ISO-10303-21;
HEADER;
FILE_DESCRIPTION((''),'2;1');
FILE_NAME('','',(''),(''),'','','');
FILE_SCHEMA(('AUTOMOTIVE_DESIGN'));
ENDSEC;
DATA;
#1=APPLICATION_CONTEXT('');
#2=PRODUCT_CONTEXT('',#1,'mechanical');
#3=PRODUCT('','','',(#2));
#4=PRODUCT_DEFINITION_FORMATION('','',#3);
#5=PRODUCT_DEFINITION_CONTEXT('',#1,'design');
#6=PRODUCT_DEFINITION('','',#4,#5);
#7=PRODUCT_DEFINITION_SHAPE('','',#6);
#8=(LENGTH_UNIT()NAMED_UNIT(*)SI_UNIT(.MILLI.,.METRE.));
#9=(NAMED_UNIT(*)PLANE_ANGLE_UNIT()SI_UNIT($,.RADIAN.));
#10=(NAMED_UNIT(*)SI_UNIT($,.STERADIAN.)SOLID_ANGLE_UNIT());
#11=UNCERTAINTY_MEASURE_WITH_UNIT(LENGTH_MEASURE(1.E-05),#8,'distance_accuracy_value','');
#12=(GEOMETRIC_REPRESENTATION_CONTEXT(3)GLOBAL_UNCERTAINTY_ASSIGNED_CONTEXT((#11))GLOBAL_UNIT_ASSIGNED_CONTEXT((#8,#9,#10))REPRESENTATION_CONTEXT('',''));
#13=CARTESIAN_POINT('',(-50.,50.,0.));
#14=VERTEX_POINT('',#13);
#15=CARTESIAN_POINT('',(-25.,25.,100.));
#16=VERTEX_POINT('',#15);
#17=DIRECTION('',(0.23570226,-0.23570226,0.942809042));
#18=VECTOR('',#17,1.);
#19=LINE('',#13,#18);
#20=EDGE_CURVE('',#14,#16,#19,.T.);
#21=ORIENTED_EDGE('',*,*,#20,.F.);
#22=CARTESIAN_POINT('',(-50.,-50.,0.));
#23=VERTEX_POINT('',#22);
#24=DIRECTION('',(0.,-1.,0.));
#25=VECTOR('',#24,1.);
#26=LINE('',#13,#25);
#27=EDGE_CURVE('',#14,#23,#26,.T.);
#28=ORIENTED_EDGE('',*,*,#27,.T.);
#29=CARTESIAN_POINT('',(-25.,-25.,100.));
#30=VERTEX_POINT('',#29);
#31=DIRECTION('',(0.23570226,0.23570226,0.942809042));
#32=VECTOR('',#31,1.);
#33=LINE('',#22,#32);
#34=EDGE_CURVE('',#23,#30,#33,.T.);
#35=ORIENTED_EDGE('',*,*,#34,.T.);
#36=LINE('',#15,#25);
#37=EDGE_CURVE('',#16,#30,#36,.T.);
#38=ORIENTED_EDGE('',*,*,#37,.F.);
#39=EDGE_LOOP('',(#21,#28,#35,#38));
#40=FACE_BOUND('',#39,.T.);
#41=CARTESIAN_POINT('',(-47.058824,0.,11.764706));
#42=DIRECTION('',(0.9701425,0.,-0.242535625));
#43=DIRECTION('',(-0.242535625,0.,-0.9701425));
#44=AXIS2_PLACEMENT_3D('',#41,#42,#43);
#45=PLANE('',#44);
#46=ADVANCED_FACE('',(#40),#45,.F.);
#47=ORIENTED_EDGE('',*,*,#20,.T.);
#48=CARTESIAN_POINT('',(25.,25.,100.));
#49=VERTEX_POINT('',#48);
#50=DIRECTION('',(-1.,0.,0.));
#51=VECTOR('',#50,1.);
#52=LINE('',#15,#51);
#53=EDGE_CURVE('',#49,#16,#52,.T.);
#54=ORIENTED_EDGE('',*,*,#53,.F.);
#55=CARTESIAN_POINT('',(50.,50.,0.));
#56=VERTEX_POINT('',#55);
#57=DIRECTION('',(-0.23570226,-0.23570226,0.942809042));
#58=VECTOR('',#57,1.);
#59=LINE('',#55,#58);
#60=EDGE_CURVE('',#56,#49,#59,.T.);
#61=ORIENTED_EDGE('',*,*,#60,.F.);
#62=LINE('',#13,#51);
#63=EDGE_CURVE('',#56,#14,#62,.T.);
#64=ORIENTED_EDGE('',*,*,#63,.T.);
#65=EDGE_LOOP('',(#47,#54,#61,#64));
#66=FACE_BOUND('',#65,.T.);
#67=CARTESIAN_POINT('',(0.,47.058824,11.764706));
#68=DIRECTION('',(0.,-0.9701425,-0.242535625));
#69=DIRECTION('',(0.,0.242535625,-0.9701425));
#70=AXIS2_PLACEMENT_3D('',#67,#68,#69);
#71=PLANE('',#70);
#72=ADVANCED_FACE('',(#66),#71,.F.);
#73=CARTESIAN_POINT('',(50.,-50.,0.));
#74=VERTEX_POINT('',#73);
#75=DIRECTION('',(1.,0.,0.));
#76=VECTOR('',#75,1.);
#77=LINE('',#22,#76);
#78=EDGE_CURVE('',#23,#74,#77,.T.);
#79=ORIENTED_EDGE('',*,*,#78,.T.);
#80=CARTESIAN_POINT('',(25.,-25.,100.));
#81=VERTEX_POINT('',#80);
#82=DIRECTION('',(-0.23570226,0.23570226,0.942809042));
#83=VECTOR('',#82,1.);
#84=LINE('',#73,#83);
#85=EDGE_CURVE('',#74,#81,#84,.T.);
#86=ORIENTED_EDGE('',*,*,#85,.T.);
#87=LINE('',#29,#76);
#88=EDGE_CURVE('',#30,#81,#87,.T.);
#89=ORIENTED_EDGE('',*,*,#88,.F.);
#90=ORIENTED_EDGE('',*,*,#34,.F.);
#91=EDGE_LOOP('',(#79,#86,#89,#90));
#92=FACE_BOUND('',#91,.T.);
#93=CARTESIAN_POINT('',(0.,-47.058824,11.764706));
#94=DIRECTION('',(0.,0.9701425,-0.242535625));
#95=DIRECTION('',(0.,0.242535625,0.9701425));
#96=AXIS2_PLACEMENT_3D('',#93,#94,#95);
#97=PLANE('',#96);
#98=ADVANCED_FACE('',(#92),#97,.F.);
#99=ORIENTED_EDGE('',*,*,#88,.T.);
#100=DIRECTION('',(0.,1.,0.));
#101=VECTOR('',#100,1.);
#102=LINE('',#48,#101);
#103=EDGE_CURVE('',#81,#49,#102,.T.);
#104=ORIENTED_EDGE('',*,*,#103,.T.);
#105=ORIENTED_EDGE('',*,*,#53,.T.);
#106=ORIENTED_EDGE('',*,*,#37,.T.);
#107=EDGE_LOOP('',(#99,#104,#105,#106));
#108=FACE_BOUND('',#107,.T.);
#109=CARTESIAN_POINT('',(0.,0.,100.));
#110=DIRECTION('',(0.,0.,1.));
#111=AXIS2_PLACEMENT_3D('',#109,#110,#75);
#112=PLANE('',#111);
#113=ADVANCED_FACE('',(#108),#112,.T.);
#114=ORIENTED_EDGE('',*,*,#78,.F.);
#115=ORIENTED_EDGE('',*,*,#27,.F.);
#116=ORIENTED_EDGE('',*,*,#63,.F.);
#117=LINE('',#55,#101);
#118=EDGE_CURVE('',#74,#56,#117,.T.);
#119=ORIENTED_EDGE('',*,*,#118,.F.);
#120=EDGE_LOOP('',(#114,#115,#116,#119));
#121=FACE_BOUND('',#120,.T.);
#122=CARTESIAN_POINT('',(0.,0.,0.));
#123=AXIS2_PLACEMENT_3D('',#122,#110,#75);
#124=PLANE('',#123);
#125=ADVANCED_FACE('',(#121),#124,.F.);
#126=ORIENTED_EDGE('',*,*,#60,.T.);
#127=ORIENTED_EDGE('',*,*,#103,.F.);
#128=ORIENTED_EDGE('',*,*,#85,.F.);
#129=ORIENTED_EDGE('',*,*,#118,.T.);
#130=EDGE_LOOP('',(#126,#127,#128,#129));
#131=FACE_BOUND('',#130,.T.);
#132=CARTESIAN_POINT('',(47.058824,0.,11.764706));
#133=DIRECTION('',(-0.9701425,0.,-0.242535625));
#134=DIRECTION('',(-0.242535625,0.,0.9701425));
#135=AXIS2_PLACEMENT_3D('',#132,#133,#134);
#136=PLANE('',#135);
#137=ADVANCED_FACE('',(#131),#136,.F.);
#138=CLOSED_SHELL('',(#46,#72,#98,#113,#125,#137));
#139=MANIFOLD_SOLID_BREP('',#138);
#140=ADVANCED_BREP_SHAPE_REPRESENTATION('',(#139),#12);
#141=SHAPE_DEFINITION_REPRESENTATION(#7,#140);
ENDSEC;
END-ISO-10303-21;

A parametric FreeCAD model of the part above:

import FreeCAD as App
import Part
import Sketcher
from FreeCAD import Vector


def add_polygon(sketch, points):
    """Adds a closed chain of lines whose ends are joined by coincident constraints."""
    first, n = sketch.GeometryCount, len(points)
    for a, b in zip(points, points[1:] + points[:1]):
        sketch.addGeometry(Part.LineSegment(App.Vector(*a, 0), App.Vector(*b, 0)), False)
    for i in range(n):
        sketch.addConstraint(Sketcher.Constraint("Coincident", first + i, 2, first + (i + 1) % n, 1))

doc = App.newDocument("Part")
body = doc.addObject("PartDesign::Body", "Body")

# Sketch on XY plane
sketch1 = body.newObject("Sketcher::SketchObject", "Sketch")
sketch1.AttachmentSupport = (doc.getObject("XY_Plane"), [""])
sketch1.MapMode = "FlatFace"
add_polygon(sketch1, [(-50, 50), (-50, -50), (50, -50), (50, 50)])  # lines 0-3
sketch1.addConstraint(Sketcher.Constraint("Vertical", 0))
sketch1.addConstraint(Sketcher.Constraint("Horizontal", 1))
sketch1.addConstraint(Sketcher.Constraint("Vertical", 2))
sketch1.addConstraint(Sketcher.Constraint("Horizontal", 3))
sketch1.addConstraint(Sketcher.Constraint("Symmetric", 0, 2, 2, 2, -1, 1))
sketch1.addConstraint(Sketcher.Constraint("Equal", 3, 0))
sketch1.addConstraint(Sketcher.Constraint("DistanceX", 1, 1, 1, 2, 100.0))

# Sketch on XY plane
sketch2 = body.newObject("Sketcher::SketchObject", "Sketch001")
sketch2.AttachmentSupport = (doc.getObject("XY_Plane"), [""])
sketch2.MapMode = "FlatFace"
sketch2.AttachmentOffset = App.Placement(Vector(0, 0, 100), App.Rotation())
add_polygon(sketch2, [(-25, 25), (-25, -25), (25, -25), (25, 25)])  # lines 0-3
sketch2.addConstraint(Sketcher.Constraint("Vertical", 0))
sketch2.addConstraint(Sketcher.Constraint("Horizontal", 1))
sketch2.addConstraint(Sketcher.Constraint("Vertical", 2))
sketch2.addConstraint(Sketcher.Constraint("Horizontal", 3))
sketch2.addConstraint(Sketcher.Constraint("Symmetric", 0, 2, 2, 2, -1, 1))
sketch2.addConstraint(Sketcher.Constraint("Equal", 3, 0))
sketch2.addConstraint(Sketcher.Constraint("DistanceX", 1, 1, 1, 2, 50.0))

additiveloft = body.newObject("PartDesign::AdditiveLoft", "AdditiveLoft")
additiveloft.Profile = sketch1
additiveloft.Sections = [sketch2]

doc.recompute()
